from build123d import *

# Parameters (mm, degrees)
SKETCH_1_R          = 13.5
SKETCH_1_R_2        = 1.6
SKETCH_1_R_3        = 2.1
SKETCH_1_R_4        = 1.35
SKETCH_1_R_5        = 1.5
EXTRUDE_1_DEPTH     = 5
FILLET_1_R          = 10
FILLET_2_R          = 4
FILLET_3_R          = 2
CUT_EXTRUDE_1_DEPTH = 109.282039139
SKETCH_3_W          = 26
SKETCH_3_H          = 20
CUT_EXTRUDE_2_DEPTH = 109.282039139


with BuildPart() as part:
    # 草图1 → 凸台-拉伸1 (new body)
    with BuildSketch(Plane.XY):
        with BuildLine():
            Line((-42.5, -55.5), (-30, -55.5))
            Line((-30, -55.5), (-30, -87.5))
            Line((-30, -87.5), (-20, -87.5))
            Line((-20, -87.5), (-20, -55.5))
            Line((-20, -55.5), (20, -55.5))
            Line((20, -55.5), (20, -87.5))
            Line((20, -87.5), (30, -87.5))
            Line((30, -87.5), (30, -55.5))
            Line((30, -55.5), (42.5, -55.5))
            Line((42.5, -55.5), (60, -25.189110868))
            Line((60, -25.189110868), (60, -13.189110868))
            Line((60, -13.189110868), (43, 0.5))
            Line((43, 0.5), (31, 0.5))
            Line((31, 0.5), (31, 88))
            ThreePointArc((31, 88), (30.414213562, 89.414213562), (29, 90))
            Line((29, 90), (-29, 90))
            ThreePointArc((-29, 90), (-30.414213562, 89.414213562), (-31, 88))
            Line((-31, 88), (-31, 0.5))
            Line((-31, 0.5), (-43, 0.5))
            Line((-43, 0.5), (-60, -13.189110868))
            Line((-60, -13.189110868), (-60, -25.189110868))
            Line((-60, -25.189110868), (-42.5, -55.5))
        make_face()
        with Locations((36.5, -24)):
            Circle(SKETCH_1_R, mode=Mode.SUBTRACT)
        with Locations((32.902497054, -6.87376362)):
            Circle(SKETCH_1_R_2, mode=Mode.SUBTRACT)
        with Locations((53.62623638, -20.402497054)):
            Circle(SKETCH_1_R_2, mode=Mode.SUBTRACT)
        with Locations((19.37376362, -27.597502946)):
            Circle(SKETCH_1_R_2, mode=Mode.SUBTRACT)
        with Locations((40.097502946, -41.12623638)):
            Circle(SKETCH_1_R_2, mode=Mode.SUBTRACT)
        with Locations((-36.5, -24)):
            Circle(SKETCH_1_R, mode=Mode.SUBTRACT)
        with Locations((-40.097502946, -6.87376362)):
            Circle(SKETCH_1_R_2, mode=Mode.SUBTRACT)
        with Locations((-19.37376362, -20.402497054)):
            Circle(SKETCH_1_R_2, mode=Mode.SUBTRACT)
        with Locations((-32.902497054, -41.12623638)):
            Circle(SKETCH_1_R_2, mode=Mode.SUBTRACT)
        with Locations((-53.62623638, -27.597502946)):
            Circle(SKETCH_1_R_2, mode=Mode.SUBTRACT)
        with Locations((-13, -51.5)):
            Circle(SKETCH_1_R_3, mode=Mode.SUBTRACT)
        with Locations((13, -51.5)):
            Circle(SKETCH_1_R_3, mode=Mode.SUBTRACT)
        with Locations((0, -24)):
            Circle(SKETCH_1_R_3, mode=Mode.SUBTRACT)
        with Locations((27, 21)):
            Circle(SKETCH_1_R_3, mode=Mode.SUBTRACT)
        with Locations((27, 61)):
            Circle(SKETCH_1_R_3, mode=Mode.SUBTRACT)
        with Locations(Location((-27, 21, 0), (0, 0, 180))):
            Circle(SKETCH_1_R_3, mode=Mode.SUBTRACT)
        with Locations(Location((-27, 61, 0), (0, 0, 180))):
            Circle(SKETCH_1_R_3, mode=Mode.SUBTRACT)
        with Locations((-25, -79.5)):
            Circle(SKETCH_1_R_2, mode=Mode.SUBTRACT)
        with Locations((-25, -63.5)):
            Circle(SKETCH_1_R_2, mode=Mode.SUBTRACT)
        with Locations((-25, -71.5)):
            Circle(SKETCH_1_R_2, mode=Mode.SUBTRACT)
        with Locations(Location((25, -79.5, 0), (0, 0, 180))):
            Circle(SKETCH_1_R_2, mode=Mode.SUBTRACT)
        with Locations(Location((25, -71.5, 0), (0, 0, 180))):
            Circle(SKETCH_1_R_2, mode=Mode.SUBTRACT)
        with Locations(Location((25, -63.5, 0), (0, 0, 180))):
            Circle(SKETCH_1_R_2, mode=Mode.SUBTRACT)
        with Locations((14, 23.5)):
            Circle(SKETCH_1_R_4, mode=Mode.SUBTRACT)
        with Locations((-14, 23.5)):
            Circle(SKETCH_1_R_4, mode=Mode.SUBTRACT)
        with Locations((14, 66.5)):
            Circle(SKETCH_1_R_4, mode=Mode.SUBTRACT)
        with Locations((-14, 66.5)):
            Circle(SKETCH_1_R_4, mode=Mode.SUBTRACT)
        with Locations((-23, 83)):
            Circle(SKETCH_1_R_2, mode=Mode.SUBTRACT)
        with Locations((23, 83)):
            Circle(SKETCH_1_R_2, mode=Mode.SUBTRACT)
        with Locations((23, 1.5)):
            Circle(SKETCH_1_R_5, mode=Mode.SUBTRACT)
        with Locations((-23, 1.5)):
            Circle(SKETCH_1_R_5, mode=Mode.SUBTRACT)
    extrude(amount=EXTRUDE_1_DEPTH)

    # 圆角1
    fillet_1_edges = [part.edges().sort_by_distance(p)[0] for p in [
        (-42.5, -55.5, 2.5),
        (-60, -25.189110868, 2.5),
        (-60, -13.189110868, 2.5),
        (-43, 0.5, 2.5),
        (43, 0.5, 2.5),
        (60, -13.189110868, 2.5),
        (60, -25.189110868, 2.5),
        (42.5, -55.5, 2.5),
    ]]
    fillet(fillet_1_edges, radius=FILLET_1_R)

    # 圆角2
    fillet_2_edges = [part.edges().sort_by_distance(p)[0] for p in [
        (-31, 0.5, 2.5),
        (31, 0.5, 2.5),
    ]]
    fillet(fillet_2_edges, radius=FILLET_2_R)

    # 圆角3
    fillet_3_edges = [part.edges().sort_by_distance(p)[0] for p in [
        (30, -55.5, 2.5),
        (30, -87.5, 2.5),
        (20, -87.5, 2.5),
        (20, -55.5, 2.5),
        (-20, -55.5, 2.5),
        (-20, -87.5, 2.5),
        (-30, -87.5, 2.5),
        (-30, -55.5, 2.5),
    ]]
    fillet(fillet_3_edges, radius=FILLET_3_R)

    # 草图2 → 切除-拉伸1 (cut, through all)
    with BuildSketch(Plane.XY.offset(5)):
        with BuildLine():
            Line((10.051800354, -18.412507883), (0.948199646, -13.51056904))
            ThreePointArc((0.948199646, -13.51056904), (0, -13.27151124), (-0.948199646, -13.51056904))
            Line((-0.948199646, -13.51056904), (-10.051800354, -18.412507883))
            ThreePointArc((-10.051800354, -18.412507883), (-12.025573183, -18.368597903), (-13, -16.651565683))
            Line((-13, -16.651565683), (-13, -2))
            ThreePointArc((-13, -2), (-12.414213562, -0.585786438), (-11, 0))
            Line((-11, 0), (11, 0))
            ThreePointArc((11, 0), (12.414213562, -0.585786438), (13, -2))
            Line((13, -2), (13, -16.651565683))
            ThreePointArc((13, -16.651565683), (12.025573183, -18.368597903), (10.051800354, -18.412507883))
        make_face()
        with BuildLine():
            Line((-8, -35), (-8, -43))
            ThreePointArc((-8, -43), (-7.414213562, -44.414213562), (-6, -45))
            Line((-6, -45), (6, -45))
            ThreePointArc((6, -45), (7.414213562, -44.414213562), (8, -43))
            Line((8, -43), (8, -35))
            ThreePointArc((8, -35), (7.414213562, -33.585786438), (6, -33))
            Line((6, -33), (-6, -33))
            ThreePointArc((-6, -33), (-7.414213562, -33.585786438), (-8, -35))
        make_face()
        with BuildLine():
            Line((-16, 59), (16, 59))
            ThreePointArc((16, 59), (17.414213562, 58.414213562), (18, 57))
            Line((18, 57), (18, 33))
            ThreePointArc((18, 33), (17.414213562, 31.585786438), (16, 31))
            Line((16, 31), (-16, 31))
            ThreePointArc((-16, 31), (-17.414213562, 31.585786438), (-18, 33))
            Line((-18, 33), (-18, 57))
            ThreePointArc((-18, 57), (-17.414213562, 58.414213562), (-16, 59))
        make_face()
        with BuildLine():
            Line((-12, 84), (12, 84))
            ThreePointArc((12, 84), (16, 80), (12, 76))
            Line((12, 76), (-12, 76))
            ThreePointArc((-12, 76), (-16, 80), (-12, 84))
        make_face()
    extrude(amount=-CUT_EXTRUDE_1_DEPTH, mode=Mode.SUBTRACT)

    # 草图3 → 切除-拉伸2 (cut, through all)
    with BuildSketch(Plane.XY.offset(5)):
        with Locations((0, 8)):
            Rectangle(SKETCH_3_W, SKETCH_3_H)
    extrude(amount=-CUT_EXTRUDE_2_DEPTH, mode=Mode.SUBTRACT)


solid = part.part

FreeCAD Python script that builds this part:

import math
import FreeCAD as App
import Part
import Sketcher
from FreeCAD import Vector
Q = App.Units.Quantity


def edges_at(feature, points):
    """Names of the edges that pass closest to the given points."""
    edges = feature.Shape.Edges
    near = lambda p: min(range(len(edges)), key=lambda i: edges[i].distToShape(Part.Vertex(*p))[0])
    return sorted({f"Edge{near(p) + 1}" for p in points})

doc = App.newDocument("Part")
body = doc.addObject("PartDesign::Body", "Body")

# Sketch on XY plane
sketch1 = doc.addObject("Sketcher::SketchObject", "Sketch")
body.addObject(sketch1)
sketch1.AttachmentSupport = (doc.XY_Plane, [""])
sketch1.MapMode = "FlatFace"
sketch1.addGeometry(Part.LineSegment(Vector(-42.5, -55.5, 0), Vector(-30, -55.5, 0)), False)
sketch1.addGeometry(Part.LineSegment(Vector(-30, -55.5, 0), Vector(-30, -87.5, 0)), False)
sketch1.addGeometry(Part.LineSegment(Vector(-30, -87.5, 0), Vector(-20, -87.5, 0)), False)
sketch1.addGeometry(Part.LineSegment(Vector(-20, -87.5, 0), Vector(-20, -55.5, 0)), False)
sketch1.addGeometry(Part.LineSegment(Vector(-20, -55.5, 0), Vector(20, -55.5, 0)), False)
sketch1.addGeometry(Part.LineSegment(Vector(20, -55.5, 0), Vector(20, -87.5, 0)), False)
sketch1.addGeometry(Part.LineSegment(Vector(20, -87.5, 0), Vector(30, -87.5, 0)), False)
sketch1.addGeometry(Part.LineSegment(Vector(30, -87.5, 0), Vector(30, -55.5, 0)), False)
sketch1.addGeometry(Part.LineSegment(Vector(30, -55.5, 0), Vector(42.5, -55.5, 0)), False)
sketch1.addGeometry(Part.LineSegment(Vector(42.5, -55.5, 0), Vector(60, -25.2, 0)), False)
sketch1.addGeometry(Part.LineSegment(Vector(60, -25.2, 0), Vector(60, -13.2, 0)), False)
sketch1.addGeometry(Part.LineSegment(Vector(60, -13.2, 0), Vector(43, 0.5, 0)), False)
sketch1.addGeometry(Part.LineSegment(Vector(43, 0.5, 0), Vector(31, 0.5, 0)), False)
sketch1.addGeometry(Part.LineSegment(Vector(31, 0.5, 0), Vector(31, 88, 0)), False)
sketch1.addGeometry(Part.ArcOfCircle(Part.Circle(Vector(29, 88, 0), Vector(0, 0, 1), 2), math.radians(0), math.radians(90)), False)
sketch1.addGeometry(Part.LineSegment(Vector(29, 90, 0), Vector(-29, 90, 0)), False)
sketch1.addGeometry(Part.ArcOfCircle(Part.Circle(Vector(-29, 88, 0), Vector(0, 0, 1), 2), math.radians(90), math.radians(180)), False)
sketch1.addGeometry(Part.LineSegment(Vector(-31, 88, 0), Vector(-31, 0.5, 0)), False)
sketch1.addGeometry(Part.LineSegment(Vector(-31, 0.5, 0), Vector(-43, 0.5, 0)), False)
sketch1.addGeometry(Part.LineSegment(Vector(-43, 0.5, 0), Vector(-60, -13.2, 0)), False)
sketch1.addGeometry(Part.LineSegment(Vector(-60, -13.2, 0), Vector(-60, -25.2, 0)), False)
sketch1.addGeometry(Part.LineSegment(Vector(-60, -25.2, 0), Vector(-42.5, -55.5, 0)), False)
sketch1.addGeometry(Part.Circle(Vector(-32.9, -41.1, 0), Vector(0, 0, 1), 1.6), False)
sketch1.addGeometry(Part.Circle(Vector(-25, -79.5, 0), Vector(0, 0, 1), 1.6), False)
sketch1.addGeometry(Part.Circle(Vector(-25, -71.5, 0), Vector(0, 0, 1), 1.6), False)
sketch1.addGeometry(Part.Circle(Vector(-25, -63.5, 0), Vector(0, 0, 1), 1.6), False)
sketch1.addGeometry(Part.Circle(Vector(-13, -51.5, 0), Vector(0, 0, 1), 2.1), False)
sketch1.addGeometry(Part.Circle(Vector(-53.6, -27.6, 0), Vector(0, 0, 1), 1.6), False)
sketch1.addGeometry(Part.Circle(Vector(-36.5, -24, 0), Vector(0, 0, 1), 13.5), False)
sketch1.addGeometry(Part.Circle(Vector(-40.1, -6.9, 0), Vector(0, 0, 1), 1.6), False)
sketch1.addGeometry(Part.Circle(Vector(-19.4, -20.4, 0), Vector(0, 0, 1), 1.6), False)
sketch1.addGeometry(Part.Circle(Vector(-23, 1.5, 0), Vector(0, 0, 1), 1.5), False)
sketch1.addGeometry(Part.Circle(Vector(25, -79.5, 0), Vector(0, 0, 1), 1.6), False)
sketch1.addGeometry(Part.Circle(Vector(25, -71.5, 0), Vector(0, 0, 1), 1.6), False)
sketch1.addGeometry(Part.Circle(Vector(25, -63.5, 0), Vector(0, 0, 1), 1.6), False)
sketch1.addGeometry(Part.Circle(Vector(13, -51.5, 0), Vector(0, 0, 1), 2.1), False)
sketch1.addGeometry(Part.Circle(Vector(40.1, -41.1, 0), Vector(0, 0, 1), 1.6), False)
sketch1.addGeometry(Part.Circle(Vector(0, -24, 0), Vector(0, 0, 1), 2.1), False)
sketch1.addGeometry(Part.Circle(Vector(19.4, -27.6, 0), Vector(0, 0, 1), 1.6), False)
sketch1.addGeometry(Part.Circle(Vector(23, 1.5, 0), Vector(0, 0, 1), 1.5), False)
sketch1.addGeometry(Part.Circle(Vector(36.5, -24, 0), Vector(0, 0, 1), 13.5), False)
sketch1.addGeometry(Part.Circle(Vector(53.6, -20.4, 0), Vector(0, 0, 1), 1.6), False)
sketch1.addGeometry(Part.Circle(Vector(32.9, -6.9, 0), Vector(0, 0, 1), 1.6), False)
sketch1.addGeometry(Part.Circle(Vector(-27, 21, 0), Vector(0, 0, 1), 2.1), False)
sketch1.addGeometry(Part.Circle(Vector(-14, 23.5, 0), Vector(0, 0, 1), 1.4), False)
sketch1.addGeometry(Part.Circle(Vector(-27, 61, 0), Vector(0, 0, 1), 2.1), False)
sketch1.addGeometry(Part.Circle(Vector(-14, 66.5, 0), Vector(0, 0, 1), 1.4), False)
sketch1.addGeometry(Part.Circle(Vector(-23, 83, 0), Vector(0, 0, 1), 1.6), False)
sketch1.addGeometry(Part.Circle(Vector(27, 21, 0), Vector(0, 0, 1), 2.1), False)
sketch1.addGeometry(Part.Circle(Vector(14, 23.5, 0), Vector(0, 0, 1), 1.4), False)
sketch1.addGeometry(Part.Circle(Vector(27, 61, 0), Vector(0, 0, 1), 2.1), False)
sketch1.addGeometry(Part.Circle(Vector(14, 66.5, 0), Vector(0, 0, 1), 1.4), False)
sketch1.addGeometry(Part.Circle(Vector(23, 83, 0), Vector(0, 0, 1), 1.6), False)
sketch1.addConstraint(Sketcher.Constraint("Coincident", 0, 2, 1, 1))
sketch1.addConstraint(Sketcher.Constraint("Coincident", 1, 2, 2, 1))
sketch1.addConstraint(Sketcher.Constraint("Coincident", 2, 2, 3, 1))
sketch1.addConstraint(Sketcher.Constraint("Coincident", 3, 2, 4, 1))
sketch1.addConstraint(Sketcher.Constraint("Coincident", 4, 2, 5, 1))
sketch1.addConstraint(Sketcher.Constraint("Coincident", 5, 2, 6, 1))
sketch1.addConstraint(Sketcher.Constraint("Coincident", 6, 2, 7, 1))
sketch1.addConstraint(Sketcher.Constraint("Coincident", 7, 2, 8, 1))
sketch1.addConstraint(Sketcher.Constraint("Coincident", 8, 2, 9, 1))
sketch1.addConstraint(Sketcher.Constraint("Coincident", 9, 2, 10, 1))
sketch1.addConstraint(Sketcher.Constraint("Coincident", 10, 2, 11, 1))
sketch1.addConstraint(Sketcher.Constraint("Coincident", 11, 2, 12, 1))
sketch1.addConstraint(Sketcher.Constraint("Coincident", 12, 2, 13, 1))
sketch1.addConstraint(Sketcher.Constraint("Tangent", 13, 2, 14, 1))
sketch1.addConstraint(Sketcher.Constraint("Tangent", 14, 2, 15, 1))
sketch1.addConstraint(Sketcher.Constraint("Tangent", 15, 2, 16, 1))
sketch1.addConstraint(Sketcher.Constraint("Tangent", 16, 2, 17, 1))
sketch1.addConstraint(Sketcher.Constraint("Coincident", 17, 2, 18, 1))
sketch1.addConstraint(Sketcher.Constraint("Coincident", 18, 2, 19, 1))
sketch1.addConstraint(Sketcher.Constraint("Coincident", 19, 2, 20, 1))
sketch1.addConstraint(Sketcher.Constraint("Coincident", 20, 2, 21, 1))
sketch1.addConstraint(Sketcher.Constraint("Coincident", 21, 2, 0, 1))
sketch1.addConstraint(Sketcher.Constraint("Horizontal", 0))
sketch1.addConstraint(Sketcher.Constraint("Vertical", 1))
sketch1.addConstraint(Sketcher.Constraint("Horizontal", 2))
sketch1.addConstraint(Sketcher.Constraint("Vertical", 3))
sketch1.addConstraint(Sketcher.Constraint("Horizontal", 4))
sketch1.addConstraint(Sketcher.Constraint("Vertical", 5))
sketch1.addConstraint(Sketcher.Constraint("Horizontal", 6))
sketch1.addConstraint(Sketcher.Constraint("Vertical", 7))
sketch1.addConstraint(Sketcher.Constraint("Horizontal", 8))
sketch1.addConstraint(Sketcher.Constraint("Vertical", 10))
sketch1.addConstraint(Sketcher.Constraint("Horizontal", 12))
sketch1.addConstraint(Sketcher.Constraint("Vertical", 13))
sketch1.addConstraint(Sketcher.Constraint("Horizontal", 15))
sketch1.addConstraint(Sketcher.Constraint("Vertical", 17))
sketch1.addConstraint(Sketcher.Constraint("Horizontal", 18))
sketch1.addConstraint(Sketcher.Constraint("Vertical", 20))
sketch1.addConstraint(Sketcher.Constraint("Equal", 14, 16))
sketch1.addConstraint(Sketcher.Constraint("Equal", 22, 23))
sketch1.addConstraint(Sketcher.Constraint("Equal", 23, 24))
sketch1.addConstraint(Sketcher.Constraint("Equal", 24, 25))
sketch1.addConstraint(Sketcher.Constraint("Equal", 25, 27))
sketch1.addConstraint(Sketcher.Constraint("Equal", 27, 29))
sketch1.addConstraint(Sketcher.Constraint("Equal", 29, 30))
sketch1.addConstraint(Sketcher.Constraint("Equal", 30, 32))
sketch1.addConstraint(Sketcher.Constraint("Equal", 32, 33))
sketch1.addConstraint(Sketcher.Constraint("Equal", 33, 34))
sketch1.addConstraint(Sketcher.Constraint("Equal", 26, 35))
sketch1.addConstraint(Sketcher.Constraint("Equal", 34, 36))
sketch1.addConstraint(Sketcher.Constraint("Equal", 35, 37))
sketch1.addConstraint(Sketcher.Constraint("Equal", 36, 38))
sketch1.addConstraint(Sketcher.Constraint("Equal", 31, 39))
sketch1.addConstraint(Sketcher.Constraint("Equal", 28, 40))
sketch1.addConstraint(Sketcher.Constraint("Equal", 38, 41))
sketch1.addConstraint(Sketcher.Constraint("Equal", 41, 42))
sketch1.addConstraint(Sketcher.Constraint("Equal", 37, 43))
sketch1.addConstraint(Sketcher.Constraint("Equal", 43, 45))
sketch1.addConstraint(Sketcher.Constraint("Equal", 44, 46))
sketch1.addConstraint(Sketcher.Constraint("Equal", 42, 47))
sketch1.addConstraint(Sketcher.Constraint("Equal", 45, 48))
sketch1.addConstraint(Sketcher.Constraint("Equal", 46, 49))
sketch1.addConstraint(Sketcher.Constraint("Equal", 48, 50))
sketch1.addConstraint(Sketcher.Constraint("Equal", 49, 51))
sketch1.addConstraint(Sketcher.Constraint("Equal", 47, 52))
sketch1.addConstraint(Sketcher.Constraint("Symmetric", 23, 3, 32, 3, -2))
sketch1.addConstraint(Sketcher.Constraint("Symmetric", 24, 3, 33, 3, -2))
sketch1.addConstraint(Sketcher.Constraint("Symmetric", 25, 3, 34, 3, -2))
sketch1.addConstraint(Sketcher.Constraint("Symmetric", 26, 3, 35, 3, -2))
sketch1.addConstraint(Sketcher.Constraint("Symmetric", 31, 3, 39, 3, -2))
sketch1.addConstraint(Sketcher.Constraint("Symmetric", 28, 3, 40, 3, -2))
sketch1.addConstraint(Sketcher.Constraint("Symmetric", 43, 3, 48, 3, -2))
sketch1.addConstraint(Sketcher.Constraint("Symmetric", 44, 3, 49, 3, -2))
sketch1.addConstraint(Sketcher.Constraint("Symmetric", 45, 3, 50, 3, -2))
sketch1.addConstraint(Sketcher.Constraint("Symmetric", 46, 3, 51, 3, -2))
sketch1.addConstraint(Sketcher.Constraint("Symmetric", 47, 3, 52, 3, -2))
sketch1.addConstraint(Sketcher.Constraint("Symmetric", 2, 2, 5, 2, -2))
sketch1.addConstraint(Sketcher.Constraint("Symmetric", 0, 2, 7, 2, -2))
sketch1.addConstraint(Sketcher.Constraint("Symmetric", 12, 2, 17, 2, -2))
sketch1.addConstraint(Sketcher.Constraint("Symmetric", 10, 2, 19, 2, -2))
sketch1.addConstraint(Sketcher.Constraint("PointOnObject", 37, 3, -2))
sketch1.addConstraint(Sketcher.Constraint("Horizontal", 22, 3, 36, 3))
sketch1.addConstraint(Sketcher.Constraint("Horizontal", 28, 3, 37, 3))
sketch1.addConstraint(Sketcher.Constraint("Horizontal", 27, 3, 38, 3))
sketch1.addConstraint(Sketcher.Constraint("Horizontal", 30, 3, 41, 3))
sketch1.addConstraint(Sketcher.Constraint("Horizontal", 29, 3, 42, 3))
sketch1.addConstraint(Sketcher.Constraint("Horizontal", 0, 2, 3, 2))
sketch1.addConstraint(Sketcher.Constraint("Horizontal", 9, 2, 20, 2))
sketch1.addConstraint(Sketcher.Constraint("Vertical", 23, 3, 24, 3))
sketch1.addConstraint(Sketcher.Constraint("Vertical", 24, 3, 25, 3))
sketch1.addConstraint(Sketcher.Constraint("Vertical", 43, 3, 45, 3))
sketch1.addConstraint(Sketcher.Constraint("Vertical", 44, 3, 46, 3))
sketch1.addConstraint(Sketcher.Constraint("Vertical", 31, 3, 47, 3))
sketch1.addConstraint(Sketcher.Constraint("Equal", 0, 8))
sketch1.addConstraint(Sketcher.Constraint("Equal", 12, 18))
sketch1.addConstraint(Sketcher.Constraint("Equal", 18, 10))
sketch1.addConstraint(Sketcher.Constraint("Diameter", 28, Q("27 mm")))
sketch1.addConstraint(Sketcher.Constraint("Diameter", 31, Q("3 mm")))
sketch1.addConstraint(Sketcher.Constraint("Radius", 14, Q("2 mm")))
sketch1.addConstraint(Sketcher.Constraint("Diameter", 22, Q("3.2 mm")))
sketch1.addConstraint(Sketcher.Constraint("Diameter", 26, Q("4.2 mm")))
sketch1.addConstraint(Sketcher.Constraint("Diameter", 44, Q("2.7 mm")))
sketch1.addConstraint(Sketcher.Constraint("DistanceX", 2, 1, 2, 2, Q("10 mm")))
sketch1.addConstraint(Sketcher.Constraint("DistanceX", 4, 1, 4, 2, Q("40 mm")))
sketch1.addConstraint(Sketcher.Constraint("DistanceX", 12, 2, 12, 1, Q("12 mm")))
sketch1.addConstraint(Sketcher.Constraint("DistanceX", 15, 2, 15, 1, Q("58 mm")))
sketch1.addConstraint(Sketcher.Constraint("DistanceY", 1, 2, 1, 1, Q("32 mm")))
sketch1.addConstraint(Sketcher.Constraint("Angle", 9, Q("60 deg")))
sketch1.addConstraint(Sketcher.Constraint("Distance", 9, Q("35 mm")))
sketch1.addConstraint(Sketcher.Constraint("DistanceX", 0, 1, 0, 2, Q("12.5 mm")))
sketch1.addConstraint(Sketcher.Constraint("DistanceY", 13, 1, 13, 2, Q("87.5 mm")))
sketch1.addConstraint(Sketcher.Constraint("DistanceY", -1, 1, 14, 3, Q("88 mm")))
sketch1.addConstraint(Sketcher.Constraint("DistanceX", 23, 3, -1, 1, Q("25 mm")))
sketch1.addConstraint(Sketcher.Constraint("DistanceX", 26, 3, -1, 1, Q("13 mm")))
sketch1.addConstraint(Sketcher.Constraint("DistanceY", 28, 3, -1, 1, Q("24 mm")))
sketch1.addConstraint(Sketcher.Constraint("DistanceX", 31, 3, -1, 1, Q("23 mm")))
sketch1.addConstraint(Sketcher.Constraint("DistanceX", 43, 3, -1, 1, Q("27 mm")))
sketch1.addConstraint(Sketcher.Constraint("DistanceY", -1, 1, 43, 3, Q("21 mm")))
sketch1.addConstraint(Sketcher.Constraint("DistanceX", 44, 3, -1, 1, Q("14 mm")))
sketch1.addConstraint(Sketcher.Constraint("DistanceY", -1, 1, 45, 3, Q("61 mm")))
sketch1.addConstraint(Sketcher.Constraint("DistanceY", -1, 1, 47, 3, Q("83 mm")))
sketch1.addConstraint(Sketcher.Constraint("DistanceY", 23, 3, 24, 3, Q("8 mm")))
sketch1.addConstraint(Sketcher.Constraint("DistanceY", 24, 3, 25, 3, Q("8 mm")))
sketch1.addConstraint(Sketcher.Constraint("DistanceY", 25, 3, 26, 3, Q("12 mm")))
sketch1.addConstraint(Sketcher.Constraint("DistanceY", 31, 3, 44, 3, Q("22 mm")))
sketch1.addConstraint(Sketcher.Constraint("DistanceY", 44, 3, 46, 3, Q("43 mm")))
sketch1.addConstraint(Sketcher.Constraint("DistanceY", 25, 3, 0, 2, Q("8 mm")))
sketch1.addConstraint(Sketcher.Constraint("DistanceY", 11, 2, 39, 3, Q("1 mm")))
sketch1.addConstraint(Sketcher.Constraint("DistanceY", 23, 3, -1, 1, Q("79.5 mm")))
sketch1.addConstraint(Sketcher.Constraint("DistanceX", 28, 3, -1, 1, Q("36.5 mm")))
sketch1.addConstraint(Sketcher.Constraint("DistanceX", 27, 3, 22, 3, Q("20.723739 mm")))
sketch1.addConstraint(Sketcher.Constraint("DistanceY", 27, 3, 29, 3, Q("20.723739 mm")))
sketch1.addConstraint(Sketcher.Constraint("DistanceY", 22, 3, 30, 3, Q("20.723739 mm")))
sketch1.addConstraint(Sketcher.Constraint("DistanceX", 29, 3, 30, 3, Q("20.723739 mm")))
sketch1.addConstraint(Sketcher.Constraint("DistanceX", 38, 3, 36, 3, Q("20.723739 mm")))
sketch1.addConstraint(Sketcher.Constraint("DistanceX", 42, 3, 41, 3, Q("20.723739 mm")))
sketch1.addConstraint(Sketcher.Constraint("DistanceX", 22, 3, -1, 1, Q("32.902497 mm")))
sketch1.addConstraint(Sketcher.Constraint("DistanceY", 22, 3, -1, 1, Q("41.126236 mm")))
sketch1.addConstraint(Sketcher.Constraint("DistanceY", 27, 3, -1, 1, Q("27.597503 mm")))
sketch1.addConstraint(Sketcher.Constraint("DistanceX", 29, 3, -1, 1, Q("40.097503 mm")))
sketch1.addConstraint(Sketcher.Constraint("DistanceX", -1, 1, 36, 3, Q("40.097503 mm")))
sketch1.addConstraint(Sketcher.Constraint("DistanceX", -1, 1, 41, 3, Q("53.626236 mm")))
pad1 = doc.addObject("PartDesign::Pad", "Pad")
body.addObject(pad1)
pad1.Profile = sketch1
pad1.Length = 5
doc.recompute()

fillet = doc.addObject("PartDesign::Fillet", "Fillet")
body.addObject(fillet)
fillet.Base = (pad1, edges_at(pad1, [
    (-42.5, -55.5, 2.5),
    (-60, -25.189, 2.5),
    (-60, -13.189, 2.5),
    (-43, 0.5, 2.5),
    (43, 0.5, 2.5),
    (60, -13.189, 2.5),
    (60, -25.189, 2.5),
    (42.5, -55.5, 2.5),
]))
fillet.Radius = 10
doc.recompute()

fillet2 = doc.addObject("PartDesign::Fillet", "Fillet001")
body.addObject(fillet2)
fillet2.Base = (fillet, edges_at(fillet, [(-31, 0.5, 2.5), (31, 0.5, 2.5)]))
fillet2.Radius = 4
doc.recompute()

fillet3 = doc.addObject("PartDesign::Fillet", "Fillet002")
body.addObject(fillet3)
fillet3.Base = (fillet2, edges_at(fillet2, [
    (30, -55.5, 2.5),
    (30, -87.5, 2.5),
    (20, -87.5, 2.5),
    (20, -55.5, 2.5),
    (-20, -55.5, 2.5),
    (-20, -87.5, 2.5),
    (-30, -87.5, 2.5),
    (-30, -55.5, 2.5),
]))
fillet3.Radius = 2

# Sketch on XY plane
sketch2 = doc.addObject("Sketcher::SketchObject", "Sketch001")
body.addObject(sketch2)
sketch2.AttachmentSupport = (doc.XY_Plane, [""])
sketch2.MapMode = "FlatFace"
sketch2.AttachmentOffset = App.Placement(Vector(0, 0, 5), App.Rotation())
sketch2.addGeometry(Part.LineSegment(Vector(0.9, -13.5, 0), Vector(10.1, -18.4, 0)), False)
sketch2.addGeometry(Part.ArcOfCircle(Part.Circle(Vector(11, -16.7, 0), Vector(0, 0, 1), 2), math.radians(-118), math.radians(0)), False)
sketch2.addGeometry(Part.LineSegment(Vector(13, -16.7, 0), Vector(13, -2, 0)), False)
sketch2.addGeometry(Part.ArcOfCircle(Part.Circle(Vector(11, -2, 0), Vector(0, 0, 1), 2), math.radians(0), math.radians(90)), False)
sketch2.addGeometry(Part.LineSegment(Vector(11, 0, 0), Vector(-11, 0, 0)), False)
sketch2.addGeometry(Part.ArcOfCircle(Part.Circle(Vector(-11, -2, 0), Vector(0, 0, 1), 2), math.radians(90), math.radians(180)), False)
sketch2.addGeometry(Part.LineSegment(Vector(-13, -2, 0), Vector(-13, -16.7, 0)), False)
sketch2.addGeometry(Part.ArcOfCircle(Part.Circle(Vector(-11, -16.7, 0), Vector(0, 0, 1), 2), math.radians(-180), math.radians(-62)), False)
sketch2.addGeometry(Part.LineSegment(Vector(-10.1, -18.4, 0), Vector(-0.9, -13.5, 0)), False)
sketch2.addGeometry(Part.ArcOfCircle(Part.Circle(Vector(0, -15.3, 0), Vector(0, 0, 1), 2), math.radians(62), math.radians(118)), False)
sketch2.addGeometry(Part.LineSegment(Vector(-8, -35, 0), Vector(-8, -43, 0)), False)
sketch2.addGeometry(Part.ArcOfCircle(Part.Circle(Vector(-6, -43, 0), Vector(0, 0, 1), 2), math.radians(-180), math.radians(-90)), False)
sketch2.addGeometry(Part.LineSegment(Vector(-6, -45, 0), Vector(6, -45, 0)), False)
sketch2.addGeometry(Part.ArcOfCircle(Part.Circle(Vector(6, -43, 0), Vector(0, 0, 1), 2), math.radians(-90), math.radians(0)), False)
sketch2.addGeometry(Part.LineSegment(Vector(8, -43, 0), Vector(8, -35, 0)), False)
sketch2.addGeometry(Part.ArcOfCircle(Part.Circle(Vector(6, -35, 0), Vector(0, 0, 1), 2), math.radians(0), math.radians(90)), False)
sketch2.addGeometry(Part.LineSegment(Vector(6, -33, 0), Vector(-6, -33, 0)), False)
sketch2.addGeometry(Part.ArcOfCircle(Part.Circle(Vector(-6, -35, 0), Vector(0, 0, 1), 2), math.radians(90), math.radians(180)), False)
sketch2.addGeometry(Part.LineSegment(Vector(16, 59, 0), Vector(-16, 59, 0)), False)
sketch2.addGeometry(Part.ArcOfCircle(Part.Circle(Vector(-16, 57, 0), Vector(0, 0, 1), 2), math.radians(90), math.radians(180)), False)
sketch2.addGeometry(Part.LineSegment(Vector(-18, 57, 0), Vector(-18, 33, 0)), False)
sketch2.addGeometry(Part.ArcOfCircle(Part.Circle(Vector(-16, 33, 0), Vector(0, 0, 1), 2), math.radians(-180), math.radians(-90)), False)
sketch2.addGeometry(Part.LineSegment(Vector(-16, 31, 0), Vector(16, 31, 0)), False)
sketch2.addGeometry(Part.ArcOfCircle(Part.Circle(Vector(16, 33, 0), Vector(0, 0, 1), 2), math.radians(-90), math.radians(0)), False)
sketch2.addGeometry(Part.LineSegment(Vector(18, 33, 0), Vector(18, 57, 0)), False)
sketch2.addGeometry(Part.ArcOfCircle(Part.Circle(Vector(16, 57, 0), Vector(0, 0, 1), 2), math.radians(0), math.radians(90)), False)
sketch2.addGeometry(Part.LineSegment(Vector(12, 84, 0), Vector(-12, 84, 0)), False)
sketch2.addGeometry(Part.ArcOfCircle(Part.Circle(Vector(-12, 80, 0), Vector(0, 0, 1), 4), math.radians(90), math.radians(270)), False)
sketch2.addGeometry(Part.LineSegment(Vector(-12, 76, 0), Vector(12, 76, 0)), False)
sketch2.addGeometry(Part.ArcOfCircle(Part.Circle(Vector(12, 80, 0), Vector(0, 0, 1), 4), math.radians(-90), math.radians(90)), False)
sketch2.addConstraint(Sketcher.Constraint("Tangent", 0, 2, 1, 1))
sketch2.addConstraint(Sketcher.Constraint("Tangent", 1, 2, 2, 1))
sketch2.addConstraint(Sketcher.Constraint("Tangent", 2, 2, 3, 1))
sketch2.addConstraint(Sketcher.Constraint("Tangent", 3, 2, 4, 1))
sketch2.addConstraint(Sketcher.Constraint("Tangent", 4, 2, 5, 1))
sketch2.addConstraint(Sketcher.Constraint("Tangent", 5, 2, 6, 1))
sketch2.addConstraint(Sketcher.Constraint("Tangent", 6, 2, 7, 1))
sketch2.addConstraint(Sketcher.Constraint("Tangent", 7, 2, 8, 1))
sketch2.addConstraint(Sketcher.Constraint("Tangent", 8, 2, 9, 2))
sketch2.addConstraint(Sketcher.Constraint("Tangent", 9, 1, 0, 1))
sketch2.addConstraint(Sketcher.Constraint("Tangent", 10, 2, 11, 1))
sketch2.addConstraint(Sketcher.Constraint("Tangent", 11, 2, 12, 1))
sketch2.addConstraint(Sketcher.Constraint("Tangent", 12, 2, 13, 1))
sketch2.addConstraint(Sketcher.Constraint("Tangent", 13, 2, 14, 1))
sketch2.addConstraint(Sketcher.Constraint("Tangent", 14, 2, 15, 1))
sketch2.addConstraint(Sketcher.Constraint("Tangent", 15, 2, 16, 1))
sketch2.addConstraint(Sketcher.Constraint("Tangent", 16, 2, 17, 1))
sketch2.addConstraint(Sketcher.Constraint("Tangent", 17, 2, 10, 1))
sketch2.addConstraint(Sketcher.Constraint("Tangent", 18, 2, 19, 1))
sketch2.addConstraint(Sketcher.Constraint("Tangent", 19, 2, 20, 1))
sketch2.addConstraint(Sketcher.Constraint("Tangent", 20, 2, 21, 1))
sketch2.addConstraint(Sketcher.Constraint("Tangent", 21, 2, 22, 1))
sketch2.addConstraint(Sketcher.Constraint("Tangent", 22, 2, 23, 1))
sketch2.addConstraint(Sketcher.Constraint("Tangent", 23, 2, 24, 1))
sketch2.addConstraint(Sketcher.Constraint("Tangent", 24, 2, 25, 1))
sketch2.addConstraint(Sketcher.Constraint("Tangent", 25, 2, 18, 1))
sketch2.addConstraint(Sketcher.Constraint("Tangent", 26, 2, 27, 1))
sketch2.addConstraint(Sketcher.Constraint("Tangent", 27, 2, 28, 1))
sketch2.addConstraint(Sketcher.Constraint("Tangent", 28, 2, 29, 1))
sketch2.addConstraint(Sketcher.Constraint("Tangent", 29, 2, 26, 1))
sketch2.addConstraint(Sketcher.Constraint("Vertical", 2))
sketch2.addConstraint(Sketcher.Constraint("Horizontal", 4))
sketch2.addConstraint(Sketcher.Constraint("Vertical", 6))
sketch2.addConstraint(Sketcher.Constraint("Vertical", 10))
sketch2.addConstraint(Sketcher.Constraint("Horizontal", 12))
sketch2.addConstraint(Sketcher.Constraint("Vertical", 14))
sketch2.addConstraint(Sketcher.Constraint("Horizontal", 16))
sketch2.addConstraint(Sketcher.Constraint("Horizontal", 18))
sketch2.addConstraint(Sketcher.Constraint("Vertical", 20))
sketch2.addConstraint(Sketcher.Constraint("Horizontal", 22))
sketch2.addConstraint(Sketcher.Constraint("Vertical", 24))
sketch2.addConstraint(Sketcher.Constraint("Horizontal", 26))
sketch2.addConstraint(Sketcher.Constraint("Horizontal", 28))
sketch2.addConstraint(Sketcher.Constraint("Equal", 1, 3))
sketch2.addConstraint(Sketcher.Constraint("Equal", 3, 5))
sketch2.addConstraint(Sketcher.Constraint("Equal", 5, 7))
sketch2.addConstraint(Sketcher.Constraint("Equal", 7, 9))
sketch2.addConstraint(Sketcher.Constraint("Equal", 9, 11))
sketch2.addConstraint(Sketcher.Constraint("Equal", 11, 13))
sketch2.addConstraint(Sketcher.Constraint("Equal", 13, 15))
sketch2.addConstraint(Sketcher.Constraint("Equal", 15, 17))
sketch2.addConstraint(Sketcher.Constraint("Equal", 17, 19))
sketch2.addConstraint(Sketcher.Constraint("Equal", 19, 21))
sketch2.addConstraint(Sketcher.Constraint("Equal", 21, 23))
sketch2.addConstraint(Sketcher.Constraint("Equal", 23, 25))
sketch2.addConstraint(Sketcher.Constraint("Symmetric", 3, 2, 4, 2, -1, 1))
sketch2.addConstraint(Sketcher.Constraint("Symmetric", 0, 2, 7, 2, -2))
sketch2.addConstraint(Sketcher.Constraint("Equal", 28, 20))
sketch2.addConstraint(Sketcher.Constraint("Radius", 1, Q("2 mm")))
sketch2.addConstraint(Sketcher.Constraint("Radius", 27, Q("4 mm")))
sketch2.addConstraint(Sketcher.Constraint("DistanceX", 4, 2, 4, 1, Q("22 mm")))
sketch2.addConstraint(Sketcher.Constraint("DistanceX", 12, 1, 12, 2, Q("12 mm")))
sketch2.addConstraint(Sketcher.Constraint("DistanceX", 18, 2, 18, 1, Q("32 mm")))
sketch2.addConstraint(Sketcher.Constraint("DistanceX", 26, 2, 26, 1, Q("24 mm")))
sketch2.addConstraint(Sketcher.Constraint("DistanceY", 10, 2, 10, 1, Q("8 mm")))
sketch2.addConstraint(Sketcher.Constraint("DistanceX", 11, 3, -1, 1, Q("6 mm")))
sketch2.addConstraint(Sketcher.Constraint("DistanceY", 11, 3, -1, 1, Q("43 mm")))
sketch2.addConstraint(Sketcher.Constraint("DistanceX", 19, 3, -1, 1, Q("16 mm")))
sketch2.addConstraint(Sketcher.Constraint("DistanceY", -1, 1, 19, 3, Q("57 mm")))
sketch2.addConstraint(Sketcher.Constraint("DistanceX", 27, 3, -1, 1, Q("12 mm")))
sketch2.addConstraint(Sketcher.Constraint("DistanceY", -1, 1, 27, 3, Q("80 mm")))
sketch2.addConstraint(Sketcher.Constraint("DistanceX", -1, 1, 0, 2, Q("10.0518 mm")))
sketch2.addConstraint(Sketcher.Constraint("DistanceY", 2, 1, 2, 2, Q("14.651566 mm")))
pocket1 = doc.addObject("PartDesign::Pocket", "Pocket")
body.addObject(pocket1)
pocket1.Profile = sketch2
pocket1.Type = "ThroughAll"

# Sketch on XY plane
sketch3 = doc.addObject("Sketcher::SketchObject", "Sketch002")
body.addObject(sketch3)
sketch3.AttachmentSupport = (doc.XY_Plane, [""])
sketch3.MapMode = "FlatFace"
sketch3.AttachmentOffset = App.Placement(Vector(0, 0, 5), App.Rotation())
sketch3.addGeometry(Part.LineSegment(Vector(-13, 18, 0), Vector(-13, -2, 0)), False)
sketch3.addGeometry(Part.LineSegment(Vector(-13, -2, 0), Vector(13, -2, 0)), False)
sketch3.addGeometry(Part.LineSegment(Vector(13, -2, 0), Vector(13, 18, 0)), False)
sketch3.addGeometry(Part.LineSegment(Vector(13, 18, 0), Vector(-13, 18, 0)), False)
sketch3.addConstraint(Sketcher.Constraint("Coincident", 0, 2, 1, 1))
sketch3.addConstraint(Sketcher.Constraint("Coincident", 1, 2, 2, 1))
sketch3.addConstraint(Sketcher.Constraint("Coincident", 2, 2, 3, 1))
sketch3.addConstraint(Sketcher.Constraint("Coincident", 3, 2, 0, 1))
sketch3.addConstraint(Sketcher.Constraint("Vertical", 0))
sketch3.addConstraint(Sketcher.Constraint("Horizontal", 1))
sketch3.addConstraint(Sketcher.Constraint("Vertical", 2))
sketch3.addConstraint(Sketcher.Constraint("Horizontal", 3))
sketch3.addConstraint(Sketcher.Constraint("DistanceX", 1, 1, 1, 2, Q("26 mm")))
sketch3.addConstraint(Sketcher.Constraint("DistanceY", 0, 2, 0, 1, Q("20 mm")))
sketch3.addConstraint(Sketcher.Constraint("DistanceX", 0, 2, -1, 1, Q("13 mm")))
sketch3.addConstraint(Sketcher.Constraint("DistanceY", 0, 2, -1, 1, Q("2 mm")))
pocket2 = doc.addObject("PartDesign::Pocket", "Pocket001")
body.addObject(pocket2)
pocket2.Profile = sketch3
pocket2.Type = "ThroughAll"

doc.recompute()
